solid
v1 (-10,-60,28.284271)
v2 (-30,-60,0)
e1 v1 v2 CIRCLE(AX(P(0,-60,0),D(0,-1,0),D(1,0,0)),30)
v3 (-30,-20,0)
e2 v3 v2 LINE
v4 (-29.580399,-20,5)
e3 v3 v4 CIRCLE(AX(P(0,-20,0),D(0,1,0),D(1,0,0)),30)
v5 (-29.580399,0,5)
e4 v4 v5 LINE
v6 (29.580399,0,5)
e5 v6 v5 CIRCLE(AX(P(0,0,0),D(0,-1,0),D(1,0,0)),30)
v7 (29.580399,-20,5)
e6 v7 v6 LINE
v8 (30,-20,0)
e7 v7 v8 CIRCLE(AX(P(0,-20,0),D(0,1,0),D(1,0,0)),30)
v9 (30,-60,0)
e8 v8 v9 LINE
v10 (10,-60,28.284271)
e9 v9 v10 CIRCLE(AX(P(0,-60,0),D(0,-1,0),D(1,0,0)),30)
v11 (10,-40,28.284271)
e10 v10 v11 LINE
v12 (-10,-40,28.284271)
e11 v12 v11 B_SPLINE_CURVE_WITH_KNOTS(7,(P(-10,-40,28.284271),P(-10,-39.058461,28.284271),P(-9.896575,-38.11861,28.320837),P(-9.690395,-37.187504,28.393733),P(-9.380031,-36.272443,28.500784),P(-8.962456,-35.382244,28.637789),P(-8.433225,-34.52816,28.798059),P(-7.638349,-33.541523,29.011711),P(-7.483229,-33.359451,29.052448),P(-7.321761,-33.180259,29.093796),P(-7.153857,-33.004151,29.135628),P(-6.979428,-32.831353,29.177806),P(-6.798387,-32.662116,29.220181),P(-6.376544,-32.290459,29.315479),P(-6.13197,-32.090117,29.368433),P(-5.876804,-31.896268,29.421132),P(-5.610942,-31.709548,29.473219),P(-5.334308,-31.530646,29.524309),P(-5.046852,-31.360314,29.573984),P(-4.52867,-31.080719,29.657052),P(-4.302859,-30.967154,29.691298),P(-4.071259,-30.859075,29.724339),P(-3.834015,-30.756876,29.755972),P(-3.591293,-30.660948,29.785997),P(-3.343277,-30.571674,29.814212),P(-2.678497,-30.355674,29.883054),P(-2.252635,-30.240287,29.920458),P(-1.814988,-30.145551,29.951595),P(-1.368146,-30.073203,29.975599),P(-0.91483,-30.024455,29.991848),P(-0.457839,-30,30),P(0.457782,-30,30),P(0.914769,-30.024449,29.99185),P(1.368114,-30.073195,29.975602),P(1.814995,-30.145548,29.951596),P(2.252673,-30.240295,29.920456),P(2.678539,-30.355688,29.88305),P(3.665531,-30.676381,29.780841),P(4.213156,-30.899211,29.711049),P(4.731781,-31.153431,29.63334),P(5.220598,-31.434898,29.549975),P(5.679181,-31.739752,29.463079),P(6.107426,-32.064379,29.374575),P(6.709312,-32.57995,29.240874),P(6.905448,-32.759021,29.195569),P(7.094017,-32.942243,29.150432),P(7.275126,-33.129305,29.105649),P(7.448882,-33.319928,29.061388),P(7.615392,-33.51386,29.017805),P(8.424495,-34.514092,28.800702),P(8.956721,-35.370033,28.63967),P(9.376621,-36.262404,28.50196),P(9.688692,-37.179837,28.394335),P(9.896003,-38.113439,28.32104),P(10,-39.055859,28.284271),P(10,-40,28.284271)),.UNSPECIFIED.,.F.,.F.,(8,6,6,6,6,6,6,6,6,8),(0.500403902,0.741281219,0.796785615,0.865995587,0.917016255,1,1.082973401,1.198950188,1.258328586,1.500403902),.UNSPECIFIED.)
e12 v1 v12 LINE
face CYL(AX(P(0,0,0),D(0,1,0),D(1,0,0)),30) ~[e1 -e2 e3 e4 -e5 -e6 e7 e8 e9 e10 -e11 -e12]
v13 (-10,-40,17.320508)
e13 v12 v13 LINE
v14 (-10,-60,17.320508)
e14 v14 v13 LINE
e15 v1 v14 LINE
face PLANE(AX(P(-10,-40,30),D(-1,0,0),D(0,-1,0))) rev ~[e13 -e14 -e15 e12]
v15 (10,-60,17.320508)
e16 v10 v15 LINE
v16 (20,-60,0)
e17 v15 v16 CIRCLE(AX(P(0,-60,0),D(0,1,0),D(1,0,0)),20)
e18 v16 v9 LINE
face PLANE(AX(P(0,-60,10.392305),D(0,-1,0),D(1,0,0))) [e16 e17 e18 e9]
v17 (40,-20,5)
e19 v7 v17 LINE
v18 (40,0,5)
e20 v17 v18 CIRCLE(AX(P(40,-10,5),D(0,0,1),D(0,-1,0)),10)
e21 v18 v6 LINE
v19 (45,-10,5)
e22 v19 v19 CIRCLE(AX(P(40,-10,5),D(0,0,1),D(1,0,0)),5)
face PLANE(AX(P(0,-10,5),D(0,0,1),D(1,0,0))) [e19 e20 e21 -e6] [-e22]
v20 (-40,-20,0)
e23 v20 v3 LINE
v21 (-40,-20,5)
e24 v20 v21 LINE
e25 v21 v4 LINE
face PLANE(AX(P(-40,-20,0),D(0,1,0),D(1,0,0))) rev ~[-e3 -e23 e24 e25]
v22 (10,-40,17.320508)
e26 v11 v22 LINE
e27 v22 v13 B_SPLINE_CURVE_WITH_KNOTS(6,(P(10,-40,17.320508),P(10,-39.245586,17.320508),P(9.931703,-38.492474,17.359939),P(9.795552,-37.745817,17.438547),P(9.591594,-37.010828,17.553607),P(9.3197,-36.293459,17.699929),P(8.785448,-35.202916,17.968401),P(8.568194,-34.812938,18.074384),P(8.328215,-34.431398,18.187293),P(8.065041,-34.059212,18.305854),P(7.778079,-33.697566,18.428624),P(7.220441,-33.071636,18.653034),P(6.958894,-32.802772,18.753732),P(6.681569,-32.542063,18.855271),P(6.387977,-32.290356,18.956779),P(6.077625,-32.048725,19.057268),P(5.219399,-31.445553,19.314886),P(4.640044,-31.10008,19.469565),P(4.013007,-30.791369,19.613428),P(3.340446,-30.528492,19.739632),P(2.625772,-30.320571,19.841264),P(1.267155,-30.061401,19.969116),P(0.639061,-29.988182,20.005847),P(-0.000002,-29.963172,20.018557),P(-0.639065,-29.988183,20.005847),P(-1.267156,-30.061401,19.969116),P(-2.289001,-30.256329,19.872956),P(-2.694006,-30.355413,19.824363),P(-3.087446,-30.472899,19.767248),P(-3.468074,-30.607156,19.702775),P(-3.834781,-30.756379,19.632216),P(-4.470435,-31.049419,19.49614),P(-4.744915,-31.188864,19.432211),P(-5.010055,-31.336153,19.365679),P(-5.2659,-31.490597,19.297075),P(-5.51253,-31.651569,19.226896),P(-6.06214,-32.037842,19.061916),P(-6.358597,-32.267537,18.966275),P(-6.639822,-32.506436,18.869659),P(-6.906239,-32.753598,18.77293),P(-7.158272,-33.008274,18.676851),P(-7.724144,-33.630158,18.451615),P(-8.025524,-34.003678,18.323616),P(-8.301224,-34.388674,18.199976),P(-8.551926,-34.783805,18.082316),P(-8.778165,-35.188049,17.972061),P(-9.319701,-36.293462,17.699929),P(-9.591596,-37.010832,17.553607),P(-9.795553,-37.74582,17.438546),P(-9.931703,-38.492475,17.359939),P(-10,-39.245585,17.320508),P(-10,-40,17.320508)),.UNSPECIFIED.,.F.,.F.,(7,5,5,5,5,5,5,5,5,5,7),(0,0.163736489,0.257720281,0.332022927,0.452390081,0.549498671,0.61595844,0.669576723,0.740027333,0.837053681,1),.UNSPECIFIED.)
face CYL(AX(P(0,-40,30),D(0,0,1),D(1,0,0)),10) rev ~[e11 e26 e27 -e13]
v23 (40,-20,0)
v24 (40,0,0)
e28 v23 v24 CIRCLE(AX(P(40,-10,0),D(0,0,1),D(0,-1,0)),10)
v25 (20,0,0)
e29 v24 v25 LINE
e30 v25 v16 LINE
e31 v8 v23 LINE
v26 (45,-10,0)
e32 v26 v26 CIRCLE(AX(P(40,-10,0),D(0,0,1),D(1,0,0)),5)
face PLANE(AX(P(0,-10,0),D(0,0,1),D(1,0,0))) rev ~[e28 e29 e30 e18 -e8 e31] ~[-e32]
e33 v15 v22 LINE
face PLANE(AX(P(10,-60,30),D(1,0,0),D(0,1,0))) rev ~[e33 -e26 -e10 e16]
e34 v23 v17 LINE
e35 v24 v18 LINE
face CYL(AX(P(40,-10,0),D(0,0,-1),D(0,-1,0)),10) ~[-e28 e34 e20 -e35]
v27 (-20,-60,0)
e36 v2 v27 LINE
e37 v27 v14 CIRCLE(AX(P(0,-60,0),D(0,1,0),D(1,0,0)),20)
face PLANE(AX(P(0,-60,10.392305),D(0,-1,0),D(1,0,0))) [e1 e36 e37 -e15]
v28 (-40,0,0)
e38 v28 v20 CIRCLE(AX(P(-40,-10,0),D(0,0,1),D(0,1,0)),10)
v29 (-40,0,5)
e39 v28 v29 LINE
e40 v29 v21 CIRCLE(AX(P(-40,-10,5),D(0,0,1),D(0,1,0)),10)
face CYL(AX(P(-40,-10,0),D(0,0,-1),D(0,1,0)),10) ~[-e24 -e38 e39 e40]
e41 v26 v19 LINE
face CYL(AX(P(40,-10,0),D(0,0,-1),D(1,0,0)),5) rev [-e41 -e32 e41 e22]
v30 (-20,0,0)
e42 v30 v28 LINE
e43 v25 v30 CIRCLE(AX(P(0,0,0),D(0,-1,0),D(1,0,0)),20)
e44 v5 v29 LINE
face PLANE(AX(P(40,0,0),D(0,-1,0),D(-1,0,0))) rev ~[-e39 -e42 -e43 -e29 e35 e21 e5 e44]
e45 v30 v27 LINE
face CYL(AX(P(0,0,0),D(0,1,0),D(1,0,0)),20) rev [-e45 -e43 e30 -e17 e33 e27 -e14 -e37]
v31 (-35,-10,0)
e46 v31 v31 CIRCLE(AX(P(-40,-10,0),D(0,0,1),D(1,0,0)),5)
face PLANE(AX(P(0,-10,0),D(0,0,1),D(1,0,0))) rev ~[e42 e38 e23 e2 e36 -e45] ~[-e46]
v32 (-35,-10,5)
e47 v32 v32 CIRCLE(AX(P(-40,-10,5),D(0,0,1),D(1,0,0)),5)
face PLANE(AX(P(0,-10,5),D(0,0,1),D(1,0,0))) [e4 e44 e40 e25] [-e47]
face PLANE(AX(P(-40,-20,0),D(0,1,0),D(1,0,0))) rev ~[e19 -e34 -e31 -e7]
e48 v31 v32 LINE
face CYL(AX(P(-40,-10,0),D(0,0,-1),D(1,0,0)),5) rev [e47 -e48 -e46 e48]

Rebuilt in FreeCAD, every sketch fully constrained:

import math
import FreeCAD as App
import Part
import Sketcher
from FreeCAD import Vector

doc = App.newDocument("Part")
body = doc.addObject("PartDesign::Body", "Body")

# Sketch on XZ plane
sketch1 = body.newObject("Sketcher::SketchObject", "Sketch")
sketch1.AttachmentSupport = (doc.getObject("XZ_Plane"), [""])
sketch1.MapMode = "FlatFace"
sketch1.addGeometry([
    Part.ArcOfCircle(Part.Circle(Vector(0, 0, 0), Vector(0, 0, 1), 30), math.radians(0), math.radians(180)),
    Part.LineSegment(Vector(-30, 0, 0), Vector(30, 0, 0)),
], False)
sketch1.addConstraint([
    Sketcher.Constraint("Coincident", 0, 1, 1, 2),
    Sketcher.Constraint("Coincident", 1, 1, 0, 2),
    Sketcher.Constraint("Horizontal", 1),
    Sketcher.Constraint("Coincident", 0, 3, -1, 1),
    Sketcher.Constraint("PointOnObject", 0, 1, -1),
    Sketcher.Constraint("Radius", 0, 30.0),
])
pad1 = body.newObject("PartDesign::Pad", "Pad")
pad1.Profile = sketch1
pad1.Length = 60

# Sketch on XY plane
sketch2 = body.newObject("Sketcher::SketchObject", "Sketch001")
sketch2.AttachmentSupport = (doc.getObject("XY_Plane"), [""])
sketch2.MapMode = "FlatFace"
sketch2.addGeometry([
    Part.LineSegment(Vector(40, 0, 0), Vector(-40, 0, 0)),
    Part.ArcOfCircle(Part.Circle(Vector(-40, -10, 0), Vector(0, 0, 1), 10), math.radians(90), math.radians(270)),
    Part.LineSegment(Vector(-40, -20, 0), Vector(40, -20, 0)),
    Part.ArcOfCircle(Part.Circle(Vector(40, -10, 0), Vector(0, 0, 1), 10), math.radians(-90), math.radians(90)),
], False)
sketch2.addConstraint([
    Sketcher.Constraint("Tangent", 0, 2, 1, 1),
    Sketcher.Constraint("Tangent", 1, 2, 2, 1),
    Sketcher.Constraint("Tangent", 2, 2, 3, 1),
    Sketcher.Constraint("Tangent", 3, 2, 0, 1),
    Sketcher.Constraint("Horizontal", 0),
    Sketcher.Constraint("Horizontal", 2),
    Sketcher.Constraint("Symmetric", 0, 2, 3, 2, -1, 1),
    Sketcher.Constraint("Radius", 1, 10.0),
    Sketcher.Constraint("DistanceX", 0, 2, 0, 1, 80.0),
])
pad2 = body.newObject("PartDesign::Pad", "Pad001")
pad2.Profile = sketch2
pad2.Length = 5

# Sketch on XZ plane
sketch3 = body.newObject("Sketcher::SketchObject", "Sketch002")
sketch3.AttachmentSupport = (doc.getObject("XZ_Plane"), [""])
sketch3.MapMode = "FlatFace"
sketch3.addGeometry([
    Part.ArcOfCircle(Part.Circle(Vector(0, 0, 0), Vector(0, 0, 1), 20), math.radians(0), math.radians(180)),
    Part.LineSegment(Vector(-20, 0, 0), Vector(20, 0, 0)),
], False)
sketch3.addConstraint([
    Sketcher.Constraint("Coincident", 0, 1, 1, 2),
    Sketcher.Constraint("Coincident", 1, 1, 0, 2),
    Sketcher.Constraint("Horizontal", 1),
    Sketcher.Constraint("Coincident", 0, 3, -1, 1),
    Sketcher.Constraint("PointOnObject", 0, 1, -1),
    Sketcher.Constraint("Radius", 0, 20.0),
])
pocket1 = body.newObject("PartDesign::Pocket", "Pocket")
pocket1.Profile = sketch3
pocket1.Type = "ThroughAll"
pocket1.Reversed = True

# Sketch on XY plane
sketch4 = body.newObject("Sketcher::SketchObject", "Sketch003")
sketch4.AttachmentSupport = (doc.getObject("XY_Plane"), [""])
sketch4.MapMode = "FlatFace"
sketch4.AttachmentOffset = App.Placement(Vector(0, 0, 30), App.Rotation())
sketch4.addGeometry([
    Part.LineSegment(Vector(-10, -60, 0), Vector(10, -60, 0)),
    Part.LineSegment(Vector(10, -60, 0), Vector(10, -40, 0)),
    Part.ArcOfCircle(Part.Circle(Vector(0, -40, 0), Vector(0, 0, 1), 10), math.radians(0), math.radians(180)),
    Part.LineSegment(Vector(-10, -40, 0), Vector(-10, -60, 0)),
], False)
sketch4.addConstraint([
    Sketcher.Constraint("Coincident", 0, 2, 1, 1),
    Sketcher.Constraint("Tangent", 1, 2, 2, 1),
    Sketcher.Constraint("Tangent", 2, 2, 3, 1),
    Sketcher.Constraint("Coincident", 3, 2, 0, 1),
    Sketcher.Constraint("Horizontal", 0),
    Sketcher.Constraint("Vertical", 1),
    Sketcher.Constraint("Vertical", 3),
    Sketcher.Constraint("PointOnObject", 2, 3, -2),
    Sketcher.Constraint("Equal", 0, 1),
    Sketcher.Constraint("Radius", 2, 10.0),
    Sketcher.Constraint("DistanceY", 2, 3, -1, 1, 40.0),
])
pocket2 = body.newObject("PartDesign::Pocket", "Pocket001")
pocket2.Profile = sketch4
pocket2.Type = "ThroughAll"

# Sketch on XY plane
sketch5 = body.newObject("Sketcher::SketchObject", "Sketch004")
sketch5.AttachmentSupport = (doc.getObject("XY_Plane"), [""])
sketch5.MapMode = "FlatFace"
sketch5.addGeometry([
    Part.Circle(Vector(-40, -10, 0), Vector(0, 0, 1), 5),
    Part.Circle(Vector(40, -10, 0), Vector(0, 0, 1), 5),
], False)
sketch5.addConstraint([
    Sketcher.Constraint("Equal", 0, 1),
    Sketcher.Constraint("Symmetric", 0, 3, 1, 3, -2),
    Sketcher.Constraint("Diameter", 0, 10.0),
    Sketcher.Constraint("DistanceX", 0, 3, -1, 1, 40.0),
    Sketcher.Constraint("DistanceY", 0, 3, -1, 1, 10.0),
])
pocket3 = body.newObject("PartDesign::Pocket", "Pocket002")
pocket3.Profile = sketch5
pocket3.Type = "ThroughAll"
pocket3.Reversed = True

doc.recompute()
